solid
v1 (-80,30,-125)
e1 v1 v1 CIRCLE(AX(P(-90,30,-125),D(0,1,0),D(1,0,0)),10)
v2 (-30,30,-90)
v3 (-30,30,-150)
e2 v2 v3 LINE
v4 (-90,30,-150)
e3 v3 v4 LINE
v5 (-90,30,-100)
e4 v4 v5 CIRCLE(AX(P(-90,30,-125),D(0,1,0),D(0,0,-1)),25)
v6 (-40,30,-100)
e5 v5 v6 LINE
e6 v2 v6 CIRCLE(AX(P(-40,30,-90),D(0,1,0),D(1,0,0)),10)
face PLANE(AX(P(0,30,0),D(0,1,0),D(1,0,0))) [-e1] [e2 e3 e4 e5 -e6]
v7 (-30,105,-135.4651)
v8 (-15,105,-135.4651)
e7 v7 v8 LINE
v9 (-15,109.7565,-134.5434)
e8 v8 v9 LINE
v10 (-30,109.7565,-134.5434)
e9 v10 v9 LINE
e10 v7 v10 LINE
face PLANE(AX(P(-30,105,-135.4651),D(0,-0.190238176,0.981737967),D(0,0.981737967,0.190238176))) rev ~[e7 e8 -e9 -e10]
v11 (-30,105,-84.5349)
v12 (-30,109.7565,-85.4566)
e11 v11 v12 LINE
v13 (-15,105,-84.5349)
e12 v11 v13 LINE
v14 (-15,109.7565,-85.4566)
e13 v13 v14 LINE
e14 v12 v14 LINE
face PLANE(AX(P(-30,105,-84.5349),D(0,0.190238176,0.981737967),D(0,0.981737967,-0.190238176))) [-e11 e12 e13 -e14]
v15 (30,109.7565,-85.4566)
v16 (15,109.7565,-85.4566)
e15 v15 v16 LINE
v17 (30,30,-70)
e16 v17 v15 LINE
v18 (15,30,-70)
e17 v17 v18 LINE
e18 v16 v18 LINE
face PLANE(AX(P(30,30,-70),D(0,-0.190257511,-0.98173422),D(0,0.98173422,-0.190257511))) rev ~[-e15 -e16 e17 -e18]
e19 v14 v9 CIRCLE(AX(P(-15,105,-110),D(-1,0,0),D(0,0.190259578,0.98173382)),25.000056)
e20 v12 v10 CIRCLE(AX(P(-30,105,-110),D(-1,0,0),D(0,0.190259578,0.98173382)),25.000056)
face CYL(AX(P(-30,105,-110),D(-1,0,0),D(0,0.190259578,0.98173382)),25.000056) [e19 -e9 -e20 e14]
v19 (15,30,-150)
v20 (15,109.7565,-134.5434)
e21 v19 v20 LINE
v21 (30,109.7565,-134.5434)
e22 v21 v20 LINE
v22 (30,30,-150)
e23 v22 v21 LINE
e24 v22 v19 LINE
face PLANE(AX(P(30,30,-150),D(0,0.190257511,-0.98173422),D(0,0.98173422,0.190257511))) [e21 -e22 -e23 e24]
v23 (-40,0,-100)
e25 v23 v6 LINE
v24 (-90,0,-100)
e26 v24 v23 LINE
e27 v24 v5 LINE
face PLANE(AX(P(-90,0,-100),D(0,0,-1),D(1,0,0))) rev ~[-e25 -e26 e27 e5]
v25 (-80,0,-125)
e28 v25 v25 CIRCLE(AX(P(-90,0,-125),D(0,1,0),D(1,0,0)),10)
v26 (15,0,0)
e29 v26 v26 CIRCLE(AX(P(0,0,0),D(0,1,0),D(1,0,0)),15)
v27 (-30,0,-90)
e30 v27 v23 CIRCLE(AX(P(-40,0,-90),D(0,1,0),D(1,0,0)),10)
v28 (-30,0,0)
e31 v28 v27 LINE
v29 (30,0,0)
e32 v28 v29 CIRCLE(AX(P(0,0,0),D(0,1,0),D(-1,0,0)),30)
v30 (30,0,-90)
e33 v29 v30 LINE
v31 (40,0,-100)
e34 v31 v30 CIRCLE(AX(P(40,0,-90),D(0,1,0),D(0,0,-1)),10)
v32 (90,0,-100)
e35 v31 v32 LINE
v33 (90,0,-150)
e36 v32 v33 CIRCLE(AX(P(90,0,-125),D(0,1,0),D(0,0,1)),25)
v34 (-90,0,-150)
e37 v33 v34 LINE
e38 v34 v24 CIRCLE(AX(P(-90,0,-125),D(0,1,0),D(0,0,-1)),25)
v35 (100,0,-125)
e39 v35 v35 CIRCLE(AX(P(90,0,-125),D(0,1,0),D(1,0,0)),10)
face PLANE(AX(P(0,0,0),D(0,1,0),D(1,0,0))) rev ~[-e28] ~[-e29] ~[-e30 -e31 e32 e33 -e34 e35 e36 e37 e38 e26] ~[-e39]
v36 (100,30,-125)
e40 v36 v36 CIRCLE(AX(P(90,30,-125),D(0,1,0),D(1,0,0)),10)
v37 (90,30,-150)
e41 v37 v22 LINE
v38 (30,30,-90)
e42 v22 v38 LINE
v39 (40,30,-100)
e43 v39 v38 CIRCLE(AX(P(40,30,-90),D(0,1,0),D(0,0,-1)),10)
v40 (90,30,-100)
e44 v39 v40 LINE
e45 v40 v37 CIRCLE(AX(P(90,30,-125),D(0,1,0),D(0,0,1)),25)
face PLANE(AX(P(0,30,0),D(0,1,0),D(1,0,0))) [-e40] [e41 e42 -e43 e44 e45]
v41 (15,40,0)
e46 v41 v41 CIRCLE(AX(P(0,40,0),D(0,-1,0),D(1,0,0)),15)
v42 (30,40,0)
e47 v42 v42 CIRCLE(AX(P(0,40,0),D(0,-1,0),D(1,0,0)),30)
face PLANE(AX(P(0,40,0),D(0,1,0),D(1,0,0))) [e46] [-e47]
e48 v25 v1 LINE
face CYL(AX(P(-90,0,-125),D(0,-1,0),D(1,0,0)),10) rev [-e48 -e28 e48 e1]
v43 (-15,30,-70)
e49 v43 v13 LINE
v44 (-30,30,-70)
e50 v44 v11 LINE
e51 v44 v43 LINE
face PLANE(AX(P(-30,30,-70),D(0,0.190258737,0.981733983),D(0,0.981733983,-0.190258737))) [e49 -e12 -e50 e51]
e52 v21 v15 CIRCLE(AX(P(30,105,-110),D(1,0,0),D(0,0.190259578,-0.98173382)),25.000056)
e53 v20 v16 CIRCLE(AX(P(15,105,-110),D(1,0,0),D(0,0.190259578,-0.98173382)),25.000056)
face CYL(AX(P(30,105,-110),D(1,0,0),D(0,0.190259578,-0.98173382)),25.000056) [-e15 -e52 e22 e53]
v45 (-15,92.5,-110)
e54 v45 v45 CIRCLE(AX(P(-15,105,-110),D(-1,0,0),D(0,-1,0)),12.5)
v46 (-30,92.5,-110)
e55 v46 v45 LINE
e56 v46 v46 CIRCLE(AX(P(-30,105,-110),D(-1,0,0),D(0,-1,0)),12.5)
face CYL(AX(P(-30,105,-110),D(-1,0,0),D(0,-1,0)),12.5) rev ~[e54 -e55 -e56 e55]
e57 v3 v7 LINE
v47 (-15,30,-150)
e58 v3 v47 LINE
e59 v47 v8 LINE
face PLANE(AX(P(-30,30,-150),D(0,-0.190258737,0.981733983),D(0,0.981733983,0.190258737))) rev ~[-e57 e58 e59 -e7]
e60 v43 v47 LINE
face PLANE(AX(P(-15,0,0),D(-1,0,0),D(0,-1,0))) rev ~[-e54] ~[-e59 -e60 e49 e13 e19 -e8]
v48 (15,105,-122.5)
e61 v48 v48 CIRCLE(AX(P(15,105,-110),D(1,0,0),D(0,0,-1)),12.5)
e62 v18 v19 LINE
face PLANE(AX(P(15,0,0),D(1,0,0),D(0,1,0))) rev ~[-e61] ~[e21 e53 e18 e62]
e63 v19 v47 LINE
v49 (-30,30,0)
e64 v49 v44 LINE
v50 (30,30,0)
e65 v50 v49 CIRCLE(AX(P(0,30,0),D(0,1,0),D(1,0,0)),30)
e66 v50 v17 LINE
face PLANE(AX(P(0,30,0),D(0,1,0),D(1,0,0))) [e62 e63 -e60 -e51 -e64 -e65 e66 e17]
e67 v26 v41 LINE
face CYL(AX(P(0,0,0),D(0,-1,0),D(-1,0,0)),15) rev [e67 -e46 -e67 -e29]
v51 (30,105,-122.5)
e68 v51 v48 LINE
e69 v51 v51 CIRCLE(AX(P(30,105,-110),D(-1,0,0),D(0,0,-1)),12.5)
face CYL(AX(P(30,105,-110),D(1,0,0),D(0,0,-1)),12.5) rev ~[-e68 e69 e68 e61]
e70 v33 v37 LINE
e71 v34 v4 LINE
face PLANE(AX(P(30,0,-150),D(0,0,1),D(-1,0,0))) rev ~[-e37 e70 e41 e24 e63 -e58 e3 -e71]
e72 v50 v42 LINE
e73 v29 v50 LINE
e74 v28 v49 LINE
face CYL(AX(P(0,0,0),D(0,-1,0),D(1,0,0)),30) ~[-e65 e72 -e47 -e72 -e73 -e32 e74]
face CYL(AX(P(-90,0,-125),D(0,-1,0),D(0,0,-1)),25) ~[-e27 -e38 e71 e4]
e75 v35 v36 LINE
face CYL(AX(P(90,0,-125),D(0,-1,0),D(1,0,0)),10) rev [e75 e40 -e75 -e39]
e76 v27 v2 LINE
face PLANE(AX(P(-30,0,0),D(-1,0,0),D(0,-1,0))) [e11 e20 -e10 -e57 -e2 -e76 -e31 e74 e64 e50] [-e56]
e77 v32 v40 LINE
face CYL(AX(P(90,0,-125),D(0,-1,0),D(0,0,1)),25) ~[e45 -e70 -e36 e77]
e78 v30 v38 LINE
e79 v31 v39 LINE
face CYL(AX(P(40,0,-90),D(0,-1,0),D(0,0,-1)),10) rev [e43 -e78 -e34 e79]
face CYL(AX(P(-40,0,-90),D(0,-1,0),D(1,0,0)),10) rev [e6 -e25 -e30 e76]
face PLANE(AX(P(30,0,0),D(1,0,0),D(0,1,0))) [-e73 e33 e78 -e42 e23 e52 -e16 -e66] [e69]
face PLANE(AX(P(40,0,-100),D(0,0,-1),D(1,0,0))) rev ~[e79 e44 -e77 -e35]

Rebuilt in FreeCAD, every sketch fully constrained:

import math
import FreeCAD as App
import Part
import Sketcher

V = App.Vector

doc = App.newDocument("Part")
body = doc.addObject("PartDesign::Body", "Body")

sketch1 = body.newObject("Sketcher::SketchObject", "Sketch")
sketch1.AttachmentSupport = (doc.getObject("XZ_Plane"), [""])
sketch1.MapMode = "FlatFace"
sketch1.addGeometry(Part.Circle(V(0, 0, 0), V(0, 0, 1), 30), False)
sketch1.addGeometry(Part.Circle(V(0, 0, 0), V(0, 0, 1), 15), False)
sketch1.addConstraint(Sketcher.Constraint("Coincident", 0, 3, -1, 1))
sketch1.addConstraint(Sketcher.Constraint("Coincident", 1, 3, -1, 1))
sketch1.addConstraint(Sketcher.Constraint("Diameter", 0, 60.0))
sketch1.addConstraint(Sketcher.Constraint("Diameter", 1, 30.0))
pad1 = body.newObject("PartDesign::Pad", "Pad")
pad1.Profile = sketch1
pad1.Length = 40
pad1.Reversed = True

sketch2 = body.newObject("Sketcher::SketchObject", "Sketch001")
sketch2.AttachmentSupport = (doc.getObject("XZ_Plane"), [""])
sketch2.MapMode = "FlatFace"
sketch2.addGeometry(Part.LineSegment(V(-30, -90, 0), V(-30, 0, 0)), False)
sketch2.addGeometry(Part.ArcOfCircle(Part.Circle(V(0, 0, 0), V(0, 0, 1), 30), math.radians(180), math.radians(360)), False)
sketch2.addGeometry(Part.LineSegment(V(30, 0, 0), V(30, -90, 0)), False)
sketch2.addGeometry(Part.ArcOfCircle(Part.Circle(V(40, -90, 0), V(0, 0, 1), 10), math.radians(180), math.radians(270)), False)
sketch2.addGeometry(Part.LineSegment(V(40, -100, 0), V(90, -100, 0)), False)
sketch2.addGeometry(Part.ArcOfCircle(Part.Circle(V(90, -125, 0), V(0, 0, 1), 25), math.radians(-90), math.radians(90)), False)
sketch2.addGeometry(Part.LineSegment(V(90, -150, 0), V(-90, -150, 0)), False)
sketch2.addGeometry(Part.ArcOfCircle(Part.Circle(V(-90, -125, 0), V(0, 0, 1), 25), math.radians(90), math.radians(270)), False)
sketch2.addGeometry(Part.LineSegment(V(-90, -100, 0), V(-40, -100, 0)), False)
sketch2.addGeometry(Part.ArcOfCircle(Part.Circle(V(-40, -90, 0), V(0, 0, 1), 10), math.radians(-90), math.radians(0)), False)
sketch2.addGeometry(Part.Circle(V(-90, -125, 0), V(0, 0, 1), 10), False)
sketch2.addGeometry(Part.Circle(V(90, -125, 0), V(0, 0, 1), 10), False)
sketch2.addConstraint(Sketcher.Constraint("Tangent", 0, 2, 1, 1))
sketch2.addConstraint(Sketcher.Constraint("Tangent", 1, 2, 2, 1))
sketch2.addConstraint(Sketcher.Constraint("Tangent", 2, 2, 3, 1))
sketch2.addConstraint(Sketcher.Constraint("Tangent", 3, 2, 4, 1))
sketch2.addConstraint(Sketcher.Constraint("Tangent", 4, 2, 5, 2))
sketch2.addConstraint(Sketcher.Constraint("Tangent", 5, 1, 6, 1))
sketch2.addConstraint(Sketcher.Constraint("Tangent", 6, 2, 7, 2))
sketch2.addConstraint(Sketcher.Constraint("Tangent", 7, 1, 8, 1))
sketch2.addConstraint(Sketcher.Constraint("Tangent", 8, 2, 9, 1))
sketch2.addConstraint(Sketcher.Constraint("Tangent", 9, 2, 0, 1))
sketch2.addConstraint(Sketcher.Constraint("Vertical", 0))
sketch2.addConstraint(Sketcher.Constraint("Vertical", 2))
sketch2.addConstraint(Sketcher.Constraint("Horizontal", 4))
sketch2.addConstraint(Sketcher.Constraint("Horizontal", 6))
sketch2.addConstraint(Sketcher.Constraint("Horizontal", 8))
sketch2.addConstraint(Sketcher.Constraint("Coincident", 1, 3, -1, 1))
sketch2.addConstraint(Sketcher.Constraint("Coincident", 10, 3, 7, 3))
sketch2.addConstraint(Sketcher.Constraint("Coincident", 11, 3, 5, 3))
sketch2.addConstraint(Sketcher.Constraint("Equal", 5, 7))
sketch2.addConstraint(Sketcher.Constraint("Equal", 3, 9))
sketch2.addConstraint(Sketcher.Constraint("Equal", 9, 10))
sketch2.addConstraint(Sketcher.Constraint("Equal", 10, 11))
sketch2.addConstraint(Sketcher.Constraint("Equal", 4, 8))
sketch2.addConstraint(Sketcher.Constraint("Diameter", 10, 20.0))
sketch2.addConstraint(Sketcher.Constraint("Radius", 1, 30.0))
sketch2.addConstraint(Sketcher.Constraint("Radius", 5, 25.0))
sketch2.addConstraint(Sketcher.Constraint("DistanceY", 5, 1, -1, 1, 150.0))
sketch2.addConstraint(Sketcher.Constraint("DistanceX", 7, 3, 0, 2, 60.0))
pad2 = body.newObject("PartDesign::Pad", "Pad001")
pad2.Profile = sketch2
pad2.Length = 30
pad2.Reversed = True

sketch3 = body.newObject("Sketcher::SketchObject", "Sketch002")
sketch3.AttachmentSupport = (doc.getObject("YZ_Plane"), [""])
sketch3.MapMode = "FlatFace"
sketch3.AttachmentOffset = App.Placement(V(0, 0, 30), App.Rotation())
sketch3.addGeometry(Part.LineSegment(V(30, -70, 0), V(30, -150, 0)), False)
sketch3.addGeometry(Part.LineSegment(V(30, -150, 0), V(109.7565, -134.5434, 0)), False)
sketch3.addGeometry(Part.ArcOfCircle(Part.Circle(V(105, -110, 0), V(0, 0, 1), 25.000056), math.radians(-79.032067), math.radians(79.032067)), False)
sketch3.addGeometry(Part.LineSegment(V(109.7565, -85.4566, 0), V(30, -70, 0)), False)
sketch3.addGeometry(Part.Circle(V(105, -110, 0), V(0, 0, 1), 12.5), False)
sketch3.addConstraint(Sketcher.Constraint("Coincident", 0, 2, 1, 1))
sketch3.addConstraint(Sketcher.Constraint("Tangent", 1, 2, 2, 1))
sketch3.addConstraint(Sketcher.Constraint("Tangent", 2, 2, 3, 1))
sketch3.addConstraint(Sketcher.Constraint("Coincident", 3, 2, 0, 1))
sketch3.addConstraint(Sketcher.Constraint("Vertical", 0))
sketch3.addConstraint(Sketcher.Constraint("Coincident", 4, 3, 2, 3))
sketch3.addConstraint(Sketcher.Constraint("Vertical", 1, 2, 2, 2))
sketch3.addConstraint(Sketcher.Constraint("Diameter", 4, 25.0))
sketch3.addConstraint(Sketcher.Constraint("Radius", 2, 25.0))
sketch3.addConstraint(Sketcher.Constraint("DistanceY", 0, 2, 0, 1, 80.0))
sketch3.addConstraint(Sketcher.Constraint("DistanceX", -1, 1, 2, 3, 105.0))
sketch3.addConstraint(Sketcher.Constraint("DistanceY", 2, 3, -1, 1, 110.0))
sketch3.addConstraint(Sketcher.Constraint("DistanceX", -1, 1, 0, 2, 30.0))
pad3 = body.newObject("PartDesign::Pad", "Pad002")
pad3.Profile = sketch3
pad3.Length = 15
pad3.Reversed = True

sketch4 = body.newObject("Sketcher::SketchObject", "Sketch003")
sketch4.AttachmentSupport = (doc.getObject("YZ_Plane"), [""])
sketch4.MapMode = "FlatFace"
sketch4.AttachmentOffset = App.Placement(V(0, 0, -30), App.Rotation())
sketch4.addGeometry(Part.LineSegment(V(30, -150, 0), V(30, -70, 0)), False)
sketch4.addGeometry(Part.LineSegment(V(30, -70, 0), V(105, -84.5349, 0)), False)
sketch4.addGeometry(Part.LineSegment(V(105, -84.5349, 0), V(109.7565, -85.4566, 0)), False)
sketch4.addGeometry(Part.ArcOfCircle(Part.Circle(V(105, -110, 0), V(0, 0, 1), 25.000056), math.radians(-79.032067), math.radians(79.032067)), False)
sketch4.addGeometry(Part.LineSegment(V(109.7565, -134.5434, 0), V(105, -135.4651, 0)), False)
sketch4.addGeometry(Part.LineSegment(V(105, -135.4651, 0), V(30, -150, 0)), False)
sketch4.addGeometry(Part.Circle(V(105, -110, 0), V(0, 0, 1), 12.5), False)
sketch4.addConstraint(Sketcher.Constraint("Coincident", 0, 2, 1, 1))
sketch4.addConstraint(Sketcher.Constraint("Coincident", 1, 2, 2, 1))
sketch4.addConstraint(Sketcher.Constraint("Tangent", 2, 2, 3, 2))
sketch4.addConstraint(Sketcher.Constraint("Tangent", 3, 1, 4, 1))
sketch4.addConstraint(Sketcher.Constraint("Coincident", 4, 2, 5, 1))
sketch4.addConstraint(Sketcher.Constraint("Coincident", 5, 2, 0, 1))
sketch4.addConstraint(Sketcher.Constraint("Vertical", 0))
sketch4.addConstraint(Sketcher.Constraint("Coincident", 6, 3, 3, 3))
sketch4.addConstraint(Sketcher.Constraint("Parallel", 1, 2))
sketch4.addConstraint(Sketcher.Constraint("Parallel", 4, 5))
sketch4.addConstraint(Sketcher.Constraint("Vertical", 6, 3, 1, 2))
sketch4.addConstraint(Sketcher.Constraint("Vertical", 2, 2, 3, 1))
sketch4.addConstraint(Sketcher.Constraint("Vertical", 1, 2, 4, 2))
sketch4.addConstraint(Sketcher.Constraint("Diameter", 6, 25.0))
sketch4.addConstraint(Sketcher.Constraint("Radius", 3, 25.0))
sketch4.addConstraint(Sketcher.Constraint("DistanceY", 0, 1, 0, 2, 80.0))
sketch4.addConstraint(Sketcher.Constraint("DistanceX", -1, 1, 3, 3, 105.0))
sketch4.addConstraint(Sketcher.Constraint("DistanceY", 3, 3, -1, 1, 110.0))
sketch4.addConstraint(Sketcher.Constraint("DistanceX", -1, 1, 0, 2, 30.0))
pad4 = body.newObject("PartDesign::Pad", "Pad003")
pad4.Profile = sketch4
pad4.Length = 15

doc.recompute()
